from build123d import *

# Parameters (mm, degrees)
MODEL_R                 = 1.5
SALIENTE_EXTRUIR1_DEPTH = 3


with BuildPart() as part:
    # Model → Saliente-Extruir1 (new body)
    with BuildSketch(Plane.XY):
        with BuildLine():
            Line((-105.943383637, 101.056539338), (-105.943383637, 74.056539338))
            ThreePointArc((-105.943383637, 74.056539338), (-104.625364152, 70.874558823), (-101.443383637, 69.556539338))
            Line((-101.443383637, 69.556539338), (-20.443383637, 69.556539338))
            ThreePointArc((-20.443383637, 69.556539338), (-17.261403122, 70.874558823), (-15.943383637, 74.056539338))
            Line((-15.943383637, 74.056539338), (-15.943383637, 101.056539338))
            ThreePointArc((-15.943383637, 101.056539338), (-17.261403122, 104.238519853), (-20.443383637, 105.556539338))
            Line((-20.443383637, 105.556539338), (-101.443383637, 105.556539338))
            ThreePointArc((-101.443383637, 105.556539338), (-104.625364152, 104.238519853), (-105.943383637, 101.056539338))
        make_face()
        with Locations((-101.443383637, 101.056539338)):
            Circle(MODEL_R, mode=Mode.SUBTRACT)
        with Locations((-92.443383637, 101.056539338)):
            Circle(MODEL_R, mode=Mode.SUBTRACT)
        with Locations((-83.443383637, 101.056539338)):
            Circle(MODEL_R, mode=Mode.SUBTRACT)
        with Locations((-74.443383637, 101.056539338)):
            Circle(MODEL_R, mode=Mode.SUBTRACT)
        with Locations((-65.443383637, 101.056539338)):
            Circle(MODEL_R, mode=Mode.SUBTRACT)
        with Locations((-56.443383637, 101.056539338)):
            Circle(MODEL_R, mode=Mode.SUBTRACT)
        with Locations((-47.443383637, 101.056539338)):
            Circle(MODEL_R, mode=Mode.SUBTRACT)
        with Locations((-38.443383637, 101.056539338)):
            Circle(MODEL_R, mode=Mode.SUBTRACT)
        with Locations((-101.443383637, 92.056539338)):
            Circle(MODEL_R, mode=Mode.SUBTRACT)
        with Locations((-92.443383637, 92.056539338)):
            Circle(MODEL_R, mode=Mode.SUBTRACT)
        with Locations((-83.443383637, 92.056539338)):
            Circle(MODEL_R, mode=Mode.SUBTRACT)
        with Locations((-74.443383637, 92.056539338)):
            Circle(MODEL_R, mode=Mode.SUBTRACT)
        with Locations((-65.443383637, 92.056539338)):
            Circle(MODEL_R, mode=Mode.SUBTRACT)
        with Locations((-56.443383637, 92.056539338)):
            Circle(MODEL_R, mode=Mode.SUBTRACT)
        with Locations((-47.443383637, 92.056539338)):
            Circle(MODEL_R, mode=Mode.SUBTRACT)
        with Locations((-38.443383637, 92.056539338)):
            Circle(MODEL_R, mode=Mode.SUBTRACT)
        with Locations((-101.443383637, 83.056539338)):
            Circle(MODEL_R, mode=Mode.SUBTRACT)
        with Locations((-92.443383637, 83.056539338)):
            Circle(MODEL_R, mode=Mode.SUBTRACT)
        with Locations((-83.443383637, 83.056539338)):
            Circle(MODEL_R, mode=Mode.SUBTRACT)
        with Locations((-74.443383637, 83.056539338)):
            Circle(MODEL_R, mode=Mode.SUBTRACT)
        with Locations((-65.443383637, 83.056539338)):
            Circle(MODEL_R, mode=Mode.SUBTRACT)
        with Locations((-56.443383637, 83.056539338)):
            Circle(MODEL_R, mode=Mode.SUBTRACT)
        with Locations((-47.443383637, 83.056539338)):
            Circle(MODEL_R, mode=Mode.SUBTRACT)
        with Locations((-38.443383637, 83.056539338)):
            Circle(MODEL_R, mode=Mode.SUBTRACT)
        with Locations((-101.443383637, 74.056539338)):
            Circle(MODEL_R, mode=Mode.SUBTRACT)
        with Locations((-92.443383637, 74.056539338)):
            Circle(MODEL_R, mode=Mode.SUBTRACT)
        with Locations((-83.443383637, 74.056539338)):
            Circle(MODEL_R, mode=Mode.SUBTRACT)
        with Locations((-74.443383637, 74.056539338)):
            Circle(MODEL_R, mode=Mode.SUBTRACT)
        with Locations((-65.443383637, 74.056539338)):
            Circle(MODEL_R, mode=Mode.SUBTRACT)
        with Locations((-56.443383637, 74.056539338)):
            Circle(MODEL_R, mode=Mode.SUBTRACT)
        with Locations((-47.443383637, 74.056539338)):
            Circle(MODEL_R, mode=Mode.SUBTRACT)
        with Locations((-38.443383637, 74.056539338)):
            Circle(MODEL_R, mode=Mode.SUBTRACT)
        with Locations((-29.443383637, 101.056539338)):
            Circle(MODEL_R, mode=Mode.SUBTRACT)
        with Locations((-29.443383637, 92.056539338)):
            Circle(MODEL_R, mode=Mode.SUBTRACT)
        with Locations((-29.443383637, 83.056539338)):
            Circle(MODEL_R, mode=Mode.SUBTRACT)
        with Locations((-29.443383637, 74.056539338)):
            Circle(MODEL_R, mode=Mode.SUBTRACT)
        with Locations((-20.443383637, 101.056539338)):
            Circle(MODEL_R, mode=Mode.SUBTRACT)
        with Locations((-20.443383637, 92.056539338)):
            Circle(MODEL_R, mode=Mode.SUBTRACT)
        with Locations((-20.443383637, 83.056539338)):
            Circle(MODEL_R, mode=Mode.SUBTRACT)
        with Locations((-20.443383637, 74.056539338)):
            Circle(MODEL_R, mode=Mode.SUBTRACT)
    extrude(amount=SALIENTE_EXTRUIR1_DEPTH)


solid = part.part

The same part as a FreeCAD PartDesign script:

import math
import FreeCAD as App
import Part
import Sketcher

V = App.Vector

doc = App.newDocument("Part")
body = doc.addObject("PartDesign::Body", "Body")

sketch1 = body.newObject("Sketcher::SketchObject", "Sketch")
sketch1.AttachmentSupport = (doc.getObject("XY_Plane"), [""])
sketch1.MapMode = "FlatFace"
sketch1.addGeometry([
    Part.LineSegment(V(-105.9, 101.1, 0), V(-105.9, 74.1, 0)),
    Part.ArcOfCircle(Part.Circle(V(-101.4, 74.1, 0), V(0, 0, 1), 4.5), math.radians(-180), math.radians(-90)),
    Part.LineSegment(V(-101.4, 69.6, 0), V(-20.4, 69.6, 0)),
    Part.ArcOfCircle(Part.Circle(V(-20.4, 74.1, 0), V(0, 0, 1), 4.5), math.radians(-90), math.radians(0)),
    Part.LineSegment(V(-15.9, 74.1, 0), V(-15.9, 101.1, 0)),
    Part.ArcOfCircle(Part.Circle(V(-20.4, 101.1, 0), V(0, 0, 1), 4.5), math.radians(0), math.radians(90)),
    Part.LineSegment(V(-20.4, 105.6, 0), V(-101.4, 105.6, 0)),
    Part.ArcOfCircle(Part.Circle(V(-101.4, 101.1, 0), V(0, 0, 1), 4.5), math.radians(90), math.radians(180)),
    Part.Circle(V(-101.4, 74.1, 0), V(0, 0, 1), 1.5),
    Part.Circle(V(-92.4, 74.1, 0), V(0, 0, 1), 1.5),
    Part.Circle(V(-83.4, 74.1, 0), V(0, 0, 1), 1.5),
    Part.Circle(V(-74.4, 74.1, 0), V(0, 0, 1), 1.5),
    Part.Circle(V(-65.4, 74.1, 0), V(0, 0, 1), 1.5),
    Part.Circle(V(-101.4, 83.1, 0), V(0, 0, 1), 1.5),
    Part.Circle(V(-92.4, 83.1, 0), V(0, 0, 1), 1.5),
    Part.Circle(V(-83.4, 83.1, 0), V(0, 0, 1), 1.5),
    Part.Circle(V(-74.4, 83.1, 0), V(0, 0, 1), 1.5),
    Part.Circle(V(-65.4, 83.1, 0), V(0, 0, 1), 1.5),
    Part.Circle(V(-56.4, 74.1, 0), V(0, 0, 1), 1.5),
    Part.Circle(V(-47.4, 74.1, 0), V(0, 0, 1), 1.5),
    Part.Circle(V(-38.4, 74.1, 0), V(0, 0, 1), 1.5),
    Part.Circle(V(-29.4, 74.1, 0), V(0, 0, 1), 1.5),
    Part.Circle(V(-20.4, 74.1, 0), V(0, 0, 1), 1.5),
    Part.Circle(V(-56.4, 83.1, 0), V(0, 0, 1), 1.5),
    Part.Circle(V(-47.4, 83.1, 0), V(0, 0, 1), 1.5),
    Part.Circle(V(-38.4, 83.1, 0), V(0, 0, 1), 1.5),
    Part.Circle(V(-29.4, 83.1, 0), V(0, 0, 1), 1.5),
    Part.Circle(V(-20.4, 83.1, 0), V(0, 0, 1), 1.5),
    Part.Circle(V(-101.4, 92.1, 0), V(0, 0, 1), 1.5),
    Part.Circle(V(-92.4, 92.1, 0), V(0, 0, 1), 1.5),
    Part.Circle(V(-83.4, 92.1, 0), V(0, 0, 1), 1.5),
    Part.Circle(V(-74.4, 92.1, 0), V(0, 0, 1), 1.5),
    Part.Circle(V(-65.4, 92.1, 0), V(0, 0, 1), 1.5),
    Part.Circle(V(-101.4, 101.1, 0), V(0, 0, 1), 1.5),
    Part.Circle(V(-92.4, 101.1, 0), V(0, 0, 1), 1.5),
    Part.Circle(V(-83.4, 101.1, 0), V(0, 0, 1), 1.5),
    Part.Circle(V(-74.4, 101.1, 0), V(0, 0, 1), 1.5),
    Part.Circle(V(-65.4, 101.1, 0), V(0, 0, 1), 1.5),
    Part.Circle(V(-56.4, 92.1, 0), V(0, 0, 1), 1.5),
    Part.Circle(V(-47.4, 92.1, 0), V(0, 0, 1), 1.5),
    Part.Circle(V(-38.4, 92.1, 0), V(0, 0, 1), 1.5),
    Part.Circle(V(-29.4, 92.1, 0), V(0, 0, 1), 1.5),
    Part.Circle(V(-20.4, 92.1, 0), V(0, 0, 1), 1.5),
    Part.Circle(V(-56.4, 101.1, 0), V(0, 0, 1), 1.5),
    Part.Circle(V(-47.4, 101.1, 0), V(0, 0, 1), 1.5),
    Part.Circle(V(-38.4, 101.1, 0), V(0, 0, 1), 1.5),
    Part.Circle(V(-29.4, 101.1, 0), V(0, 0, 1), 1.5),
    Part.Circle(V(-20.4, 101.1, 0), V(0, 0, 1), 1.5),
], False)
sketch1.addConstraint([
    Sketcher.Constraint("Tangent", 0, 2, 1, 1),
    Sketcher.Constraint("Tangent", 1, 2, 2, 1),
    Sketcher.Constraint("Tangent", 2, 2, 3, 1),
    Sketcher.Constraint("Tangent", 3, 2, 4, 1),
    Sketcher.Constraint("Tangent", 4, 2, 5, 1),
    Sketcher.Constraint("Tangent", 5, 2, 6, 1),
    Sketcher.Constraint("Tangent", 6, 2, 7, 1),
    Sketcher.Constraint("Tangent", 7, 2, 0, 1),
    Sketcher.Constraint("Vertical", 0),
    Sketcher.Constraint("Horizontal", 2),
    Sketcher.Constraint("Vertical", 4),
    Sketcher.Constraint("Horizontal", 6),
    Sketcher.Constraint("Coincident", 8, 3, 1, 3),
    Sketcher.Constraint("Coincident", 22, 3, 3, 3),
    Sketcher.Constraint("Coincident", 33, 3, 7, 3),
    Sketcher.Constraint("Coincident", 47, 3, 5, 3),
    Sketcher.Constraint("Equal", 1, 3),
    Sketcher.Constraint("Equal", 3, 5),
    Sketcher.Constraint("Equal", 5, 7),
    Sketcher.Constraint("Equal", 8, 9),
    Sketcher.Constraint("Equal", 9, 10),
    Sketcher.Constraint("Equal", 10, 11),
    Sketcher.Constraint("Equal", 11, 12),
    Sketcher.Constraint("Equal", 12, 13),
    Sketcher.Constraint("Equal", 13, 14),
    Sketcher.Constraint("Equal", 14, 15),
    Sketcher.Constraint("Equal", 15, 16),
    Sketcher.Constraint("Equal", 16, 17),
    Sketcher.Constraint("Equal", 17, 18),
    Sketcher.Constraint("Equal", 18, 19),
    Sketcher.Constraint("Equal", 19, 20),
    Sketcher.Constraint("Equal", 20, 21),
    Sketcher.Constraint("Equal", 21, 22),
    Sketcher.Constraint("Equal", 22, 23),
    Sketcher.Constraint("Equal", 23, 24),
    Sketcher.Constraint("Equal", 24, 25),
    Sketcher.Constraint("Equal", 25, 26),
    Sketcher.Constraint("Equal", 26, 27),
    Sketcher.Constraint("Equal", 27, 28),
    Sketcher.Constraint("Equal", 28, 29),
    Sketcher.Constraint("Equal", 29, 30),
    Sketcher.Constraint("Equal", 30, 31),
    Sketcher.Constraint("Equal", 31, 32),
    Sketcher.Constraint("Equal", 32, 33),
    Sketcher.Constraint("Equal", 33, 34),
    Sketcher.Constraint("Equal", 34, 35),
    Sketcher.Constraint("Equal", 35, 36),
    Sketcher.Constraint("Equal", 36, 37),
    Sketcher.Constraint("Equal", 37, 38),
    Sketcher.Constraint("Equal", 38, 39),
    Sketcher.Constraint("Equal", 39, 40),
    Sketcher.Constraint("Equal", 40, 41),
    Sketcher.Constraint("Equal", 41, 42),
    Sketcher.Constraint("Equal", 42, 43),
    Sketcher.Constraint("Equal", 43, 44),
    Sketcher.Constraint("Equal", 44, 45),
    Sketcher.Constraint("Equal", 45, 46),
    Sketcher.Constraint("Equal", 46, 47),
    Sketcher.Constraint("Horizontal", 8, 3, 9, 3),
    Sketcher.Constraint("Horizontal", 9, 3, 10, 3),
    Sketcher.Constraint("Horizontal", 10, 3, 11, 3),
    Sketcher.Constraint("Horizontal", 11, 3, 12, 3),
    Sketcher.Constraint("Horizontal", 13, 3, 14, 3),
    Sketcher.Constraint("Horizontal", 14, 3, 15, 3),
    Sketcher.Constraint("Horizontal", 15, 3, 16, 3),
    Sketcher.Constraint("Horizontal", 16, 3, 17, 3),
    Sketcher.Constraint("Horizontal", 12, 3, 18, 3),
    Sketcher.Constraint("Horizontal", 18, 3, 19, 3),
    Sketcher.Constraint("Horizontal", 19, 3, 20, 3),
    Sketcher.Constraint("Horizontal", 20, 3, 21, 3),
    Sketcher.Constraint("Horizontal", 17, 3, 23, 3),
    Sketcher.Constraint("Horizontal", 23, 3, 24, 3),
    Sketcher.Constraint("Horizontal", 24, 3, 25, 3),
    Sketcher.Constraint("Horizontal", 25, 3, 26, 3),
    Sketcher.Constraint("Horizontal", 26, 3, 27, 3),
    Sketcher.Constraint("Horizontal", 28, 3, 29, 3),
    Sketcher.Constraint("Horizontal", 29, 3, 30, 3),
    Sketcher.Constraint("Horizontal", 30, 3, 31, 3),
    Sketcher.Constraint("Horizontal", 31, 3, 32, 3),
    Sketcher.Constraint("Horizontal", 33, 3, 34, 3),
    Sketcher.Constraint("Horizontal", 34, 3, 35, 3),
    Sketcher.Constraint("Horizontal", 35, 3, 36, 3),
    Sketcher.Constraint("Horizontal", 36, 3, 37, 3),
    Sketcher.Constraint("Horizontal", 32, 3, 38, 3),
    Sketcher.Constraint("Horizontal", 38, 3, 39, 3),
    Sketcher.Constraint("Horizontal", 39, 3, 40, 3),
    Sketcher.Constraint("Horizontal", 40, 3, 41, 3),
    Sketcher.Constraint("Horizontal", 41, 3, 42, 3),
    Sketcher.Constraint("Horizontal", 37, 3, 43, 3),
    Sketcher.Constraint("Horizontal", 43, 3, 44, 3),
    Sketcher.Constraint("Horizontal", 44, 3, 45, 3),
    Sketcher.Constraint("Horizontal", 45, 3, 46, 3),
    Sketcher.Constraint("Vertical", 8, 3, 13, 3),
    Sketcher.Constraint("Vertical", 9, 3, 14, 3),
    Sketcher.Constraint("Vertical", 10, 3, 15, 3),
    Sketcher.Constraint("Vertical", 11, 3, 16, 3),
    Sketcher.Constraint("Vertical", 12, 3, 17, 3),
    Sketcher.Constraint("Vertical", 18, 3, 23, 3),
    Sketcher.Constraint("Vertical", 19, 3, 24, 3),
    Sketcher.Constraint("Vertical", 20, 3, 25, 3),
    Sketcher.Constraint("Vertical", 21, 3, 26, 3),
    Sketcher.Constraint("Vertical", 22, 3, 27, 3),
    Sketcher.Constraint("Vertical", 13, 3, 28, 3),
    Sketcher.Constraint("Vertical", 14, 3, 29, 3),
    Sketcher.Constraint("Vertical", 15, 3, 30, 3),
    Sketcher.Constraint("Vertical", 16, 3, 31, 3),
    Sketcher.Constraint("Vertical", 17, 3, 32, 3),
    Sketcher.Constraint("Vertical", 29, 3, 34, 3),
    Sketcher.Constraint("Vertical", 30, 3, 35, 3),
    Sketcher.Constraint("Vertical", 31, 3, 36, 3),
    Sketcher.Constraint("Vertical", 32, 3, 37, 3),
    Sketcher.Constraint("Vertical", 23, 3, 38, 3),
    Sketcher.Constraint("Vertical", 24, 3, 39, 3),
    Sketcher.Constraint("Vertical", 25, 3, 40, 3),
    Sketcher.Constraint("Vertical", 26, 3, 41, 3),
    Sketcher.Constraint("Vertical", 27, 3, 42, 3),
    Sketcher.Constraint("Vertical", 38, 3, 43, 3),
    Sketcher.Constraint("Vertical", 39, 3, 44, 3),
    Sketcher.Constraint("Vertical", 40, 3, 45, 3),
    Sketcher.Constraint("Vertical", 41, 3, 46, 3),
    Sketcher.Constraint("Diameter", 8, 3.0),
    Sketcher.Constraint("Radius", 1, 4.5),
    Sketcher.Constraint("DistanceX", 2, 1, 2, 2, 81.0),
    Sketcher.Constraint("DistanceY", 0, 2, 0, 1, 27.0),
    Sketcher.Constraint("DistanceX", 1, 3, 9, 3, 9.0),
    Sketcher.Constraint("DistanceX", 9, 3, 10, 3, 9.0),
    Sketcher.Constraint("DistanceX", 10, 3, 11, 3, 9.0),
    Sketcher.Constraint("DistanceX", 11, 3, 12, 3, 9.0),
    Sketcher.Constraint("DistanceY", 1, 3, 13, 3, 9.0),
    Sketcher.Constraint("DistanceX", 12, 3, 18, 3, 9.0),
    Sketcher.Constraint("DistanceX", 18, 3, 19, 3, 9.0),
    Sketcher.Constraint("DistanceX", 19, 3, 20, 3, 9.0),
    Sketcher.Constraint("DistanceX", 21, 3, 3, 3, 9.0),
    Sketcher.Constraint("DistanceY", 28, 3, 7, 3, 9.0),
    Sketcher.Constraint("DistanceY", -1, 1, 1, 3, 74.056539),
    Sketcher.Constraint("DistanceX", 1, 3, -1, 1, 101.443384),
])
pad1 = body.newObject("PartDesign::Pad", "Pad")
pad1.Profile = sketch1
pad1.Length = 3

doc.recompute()
